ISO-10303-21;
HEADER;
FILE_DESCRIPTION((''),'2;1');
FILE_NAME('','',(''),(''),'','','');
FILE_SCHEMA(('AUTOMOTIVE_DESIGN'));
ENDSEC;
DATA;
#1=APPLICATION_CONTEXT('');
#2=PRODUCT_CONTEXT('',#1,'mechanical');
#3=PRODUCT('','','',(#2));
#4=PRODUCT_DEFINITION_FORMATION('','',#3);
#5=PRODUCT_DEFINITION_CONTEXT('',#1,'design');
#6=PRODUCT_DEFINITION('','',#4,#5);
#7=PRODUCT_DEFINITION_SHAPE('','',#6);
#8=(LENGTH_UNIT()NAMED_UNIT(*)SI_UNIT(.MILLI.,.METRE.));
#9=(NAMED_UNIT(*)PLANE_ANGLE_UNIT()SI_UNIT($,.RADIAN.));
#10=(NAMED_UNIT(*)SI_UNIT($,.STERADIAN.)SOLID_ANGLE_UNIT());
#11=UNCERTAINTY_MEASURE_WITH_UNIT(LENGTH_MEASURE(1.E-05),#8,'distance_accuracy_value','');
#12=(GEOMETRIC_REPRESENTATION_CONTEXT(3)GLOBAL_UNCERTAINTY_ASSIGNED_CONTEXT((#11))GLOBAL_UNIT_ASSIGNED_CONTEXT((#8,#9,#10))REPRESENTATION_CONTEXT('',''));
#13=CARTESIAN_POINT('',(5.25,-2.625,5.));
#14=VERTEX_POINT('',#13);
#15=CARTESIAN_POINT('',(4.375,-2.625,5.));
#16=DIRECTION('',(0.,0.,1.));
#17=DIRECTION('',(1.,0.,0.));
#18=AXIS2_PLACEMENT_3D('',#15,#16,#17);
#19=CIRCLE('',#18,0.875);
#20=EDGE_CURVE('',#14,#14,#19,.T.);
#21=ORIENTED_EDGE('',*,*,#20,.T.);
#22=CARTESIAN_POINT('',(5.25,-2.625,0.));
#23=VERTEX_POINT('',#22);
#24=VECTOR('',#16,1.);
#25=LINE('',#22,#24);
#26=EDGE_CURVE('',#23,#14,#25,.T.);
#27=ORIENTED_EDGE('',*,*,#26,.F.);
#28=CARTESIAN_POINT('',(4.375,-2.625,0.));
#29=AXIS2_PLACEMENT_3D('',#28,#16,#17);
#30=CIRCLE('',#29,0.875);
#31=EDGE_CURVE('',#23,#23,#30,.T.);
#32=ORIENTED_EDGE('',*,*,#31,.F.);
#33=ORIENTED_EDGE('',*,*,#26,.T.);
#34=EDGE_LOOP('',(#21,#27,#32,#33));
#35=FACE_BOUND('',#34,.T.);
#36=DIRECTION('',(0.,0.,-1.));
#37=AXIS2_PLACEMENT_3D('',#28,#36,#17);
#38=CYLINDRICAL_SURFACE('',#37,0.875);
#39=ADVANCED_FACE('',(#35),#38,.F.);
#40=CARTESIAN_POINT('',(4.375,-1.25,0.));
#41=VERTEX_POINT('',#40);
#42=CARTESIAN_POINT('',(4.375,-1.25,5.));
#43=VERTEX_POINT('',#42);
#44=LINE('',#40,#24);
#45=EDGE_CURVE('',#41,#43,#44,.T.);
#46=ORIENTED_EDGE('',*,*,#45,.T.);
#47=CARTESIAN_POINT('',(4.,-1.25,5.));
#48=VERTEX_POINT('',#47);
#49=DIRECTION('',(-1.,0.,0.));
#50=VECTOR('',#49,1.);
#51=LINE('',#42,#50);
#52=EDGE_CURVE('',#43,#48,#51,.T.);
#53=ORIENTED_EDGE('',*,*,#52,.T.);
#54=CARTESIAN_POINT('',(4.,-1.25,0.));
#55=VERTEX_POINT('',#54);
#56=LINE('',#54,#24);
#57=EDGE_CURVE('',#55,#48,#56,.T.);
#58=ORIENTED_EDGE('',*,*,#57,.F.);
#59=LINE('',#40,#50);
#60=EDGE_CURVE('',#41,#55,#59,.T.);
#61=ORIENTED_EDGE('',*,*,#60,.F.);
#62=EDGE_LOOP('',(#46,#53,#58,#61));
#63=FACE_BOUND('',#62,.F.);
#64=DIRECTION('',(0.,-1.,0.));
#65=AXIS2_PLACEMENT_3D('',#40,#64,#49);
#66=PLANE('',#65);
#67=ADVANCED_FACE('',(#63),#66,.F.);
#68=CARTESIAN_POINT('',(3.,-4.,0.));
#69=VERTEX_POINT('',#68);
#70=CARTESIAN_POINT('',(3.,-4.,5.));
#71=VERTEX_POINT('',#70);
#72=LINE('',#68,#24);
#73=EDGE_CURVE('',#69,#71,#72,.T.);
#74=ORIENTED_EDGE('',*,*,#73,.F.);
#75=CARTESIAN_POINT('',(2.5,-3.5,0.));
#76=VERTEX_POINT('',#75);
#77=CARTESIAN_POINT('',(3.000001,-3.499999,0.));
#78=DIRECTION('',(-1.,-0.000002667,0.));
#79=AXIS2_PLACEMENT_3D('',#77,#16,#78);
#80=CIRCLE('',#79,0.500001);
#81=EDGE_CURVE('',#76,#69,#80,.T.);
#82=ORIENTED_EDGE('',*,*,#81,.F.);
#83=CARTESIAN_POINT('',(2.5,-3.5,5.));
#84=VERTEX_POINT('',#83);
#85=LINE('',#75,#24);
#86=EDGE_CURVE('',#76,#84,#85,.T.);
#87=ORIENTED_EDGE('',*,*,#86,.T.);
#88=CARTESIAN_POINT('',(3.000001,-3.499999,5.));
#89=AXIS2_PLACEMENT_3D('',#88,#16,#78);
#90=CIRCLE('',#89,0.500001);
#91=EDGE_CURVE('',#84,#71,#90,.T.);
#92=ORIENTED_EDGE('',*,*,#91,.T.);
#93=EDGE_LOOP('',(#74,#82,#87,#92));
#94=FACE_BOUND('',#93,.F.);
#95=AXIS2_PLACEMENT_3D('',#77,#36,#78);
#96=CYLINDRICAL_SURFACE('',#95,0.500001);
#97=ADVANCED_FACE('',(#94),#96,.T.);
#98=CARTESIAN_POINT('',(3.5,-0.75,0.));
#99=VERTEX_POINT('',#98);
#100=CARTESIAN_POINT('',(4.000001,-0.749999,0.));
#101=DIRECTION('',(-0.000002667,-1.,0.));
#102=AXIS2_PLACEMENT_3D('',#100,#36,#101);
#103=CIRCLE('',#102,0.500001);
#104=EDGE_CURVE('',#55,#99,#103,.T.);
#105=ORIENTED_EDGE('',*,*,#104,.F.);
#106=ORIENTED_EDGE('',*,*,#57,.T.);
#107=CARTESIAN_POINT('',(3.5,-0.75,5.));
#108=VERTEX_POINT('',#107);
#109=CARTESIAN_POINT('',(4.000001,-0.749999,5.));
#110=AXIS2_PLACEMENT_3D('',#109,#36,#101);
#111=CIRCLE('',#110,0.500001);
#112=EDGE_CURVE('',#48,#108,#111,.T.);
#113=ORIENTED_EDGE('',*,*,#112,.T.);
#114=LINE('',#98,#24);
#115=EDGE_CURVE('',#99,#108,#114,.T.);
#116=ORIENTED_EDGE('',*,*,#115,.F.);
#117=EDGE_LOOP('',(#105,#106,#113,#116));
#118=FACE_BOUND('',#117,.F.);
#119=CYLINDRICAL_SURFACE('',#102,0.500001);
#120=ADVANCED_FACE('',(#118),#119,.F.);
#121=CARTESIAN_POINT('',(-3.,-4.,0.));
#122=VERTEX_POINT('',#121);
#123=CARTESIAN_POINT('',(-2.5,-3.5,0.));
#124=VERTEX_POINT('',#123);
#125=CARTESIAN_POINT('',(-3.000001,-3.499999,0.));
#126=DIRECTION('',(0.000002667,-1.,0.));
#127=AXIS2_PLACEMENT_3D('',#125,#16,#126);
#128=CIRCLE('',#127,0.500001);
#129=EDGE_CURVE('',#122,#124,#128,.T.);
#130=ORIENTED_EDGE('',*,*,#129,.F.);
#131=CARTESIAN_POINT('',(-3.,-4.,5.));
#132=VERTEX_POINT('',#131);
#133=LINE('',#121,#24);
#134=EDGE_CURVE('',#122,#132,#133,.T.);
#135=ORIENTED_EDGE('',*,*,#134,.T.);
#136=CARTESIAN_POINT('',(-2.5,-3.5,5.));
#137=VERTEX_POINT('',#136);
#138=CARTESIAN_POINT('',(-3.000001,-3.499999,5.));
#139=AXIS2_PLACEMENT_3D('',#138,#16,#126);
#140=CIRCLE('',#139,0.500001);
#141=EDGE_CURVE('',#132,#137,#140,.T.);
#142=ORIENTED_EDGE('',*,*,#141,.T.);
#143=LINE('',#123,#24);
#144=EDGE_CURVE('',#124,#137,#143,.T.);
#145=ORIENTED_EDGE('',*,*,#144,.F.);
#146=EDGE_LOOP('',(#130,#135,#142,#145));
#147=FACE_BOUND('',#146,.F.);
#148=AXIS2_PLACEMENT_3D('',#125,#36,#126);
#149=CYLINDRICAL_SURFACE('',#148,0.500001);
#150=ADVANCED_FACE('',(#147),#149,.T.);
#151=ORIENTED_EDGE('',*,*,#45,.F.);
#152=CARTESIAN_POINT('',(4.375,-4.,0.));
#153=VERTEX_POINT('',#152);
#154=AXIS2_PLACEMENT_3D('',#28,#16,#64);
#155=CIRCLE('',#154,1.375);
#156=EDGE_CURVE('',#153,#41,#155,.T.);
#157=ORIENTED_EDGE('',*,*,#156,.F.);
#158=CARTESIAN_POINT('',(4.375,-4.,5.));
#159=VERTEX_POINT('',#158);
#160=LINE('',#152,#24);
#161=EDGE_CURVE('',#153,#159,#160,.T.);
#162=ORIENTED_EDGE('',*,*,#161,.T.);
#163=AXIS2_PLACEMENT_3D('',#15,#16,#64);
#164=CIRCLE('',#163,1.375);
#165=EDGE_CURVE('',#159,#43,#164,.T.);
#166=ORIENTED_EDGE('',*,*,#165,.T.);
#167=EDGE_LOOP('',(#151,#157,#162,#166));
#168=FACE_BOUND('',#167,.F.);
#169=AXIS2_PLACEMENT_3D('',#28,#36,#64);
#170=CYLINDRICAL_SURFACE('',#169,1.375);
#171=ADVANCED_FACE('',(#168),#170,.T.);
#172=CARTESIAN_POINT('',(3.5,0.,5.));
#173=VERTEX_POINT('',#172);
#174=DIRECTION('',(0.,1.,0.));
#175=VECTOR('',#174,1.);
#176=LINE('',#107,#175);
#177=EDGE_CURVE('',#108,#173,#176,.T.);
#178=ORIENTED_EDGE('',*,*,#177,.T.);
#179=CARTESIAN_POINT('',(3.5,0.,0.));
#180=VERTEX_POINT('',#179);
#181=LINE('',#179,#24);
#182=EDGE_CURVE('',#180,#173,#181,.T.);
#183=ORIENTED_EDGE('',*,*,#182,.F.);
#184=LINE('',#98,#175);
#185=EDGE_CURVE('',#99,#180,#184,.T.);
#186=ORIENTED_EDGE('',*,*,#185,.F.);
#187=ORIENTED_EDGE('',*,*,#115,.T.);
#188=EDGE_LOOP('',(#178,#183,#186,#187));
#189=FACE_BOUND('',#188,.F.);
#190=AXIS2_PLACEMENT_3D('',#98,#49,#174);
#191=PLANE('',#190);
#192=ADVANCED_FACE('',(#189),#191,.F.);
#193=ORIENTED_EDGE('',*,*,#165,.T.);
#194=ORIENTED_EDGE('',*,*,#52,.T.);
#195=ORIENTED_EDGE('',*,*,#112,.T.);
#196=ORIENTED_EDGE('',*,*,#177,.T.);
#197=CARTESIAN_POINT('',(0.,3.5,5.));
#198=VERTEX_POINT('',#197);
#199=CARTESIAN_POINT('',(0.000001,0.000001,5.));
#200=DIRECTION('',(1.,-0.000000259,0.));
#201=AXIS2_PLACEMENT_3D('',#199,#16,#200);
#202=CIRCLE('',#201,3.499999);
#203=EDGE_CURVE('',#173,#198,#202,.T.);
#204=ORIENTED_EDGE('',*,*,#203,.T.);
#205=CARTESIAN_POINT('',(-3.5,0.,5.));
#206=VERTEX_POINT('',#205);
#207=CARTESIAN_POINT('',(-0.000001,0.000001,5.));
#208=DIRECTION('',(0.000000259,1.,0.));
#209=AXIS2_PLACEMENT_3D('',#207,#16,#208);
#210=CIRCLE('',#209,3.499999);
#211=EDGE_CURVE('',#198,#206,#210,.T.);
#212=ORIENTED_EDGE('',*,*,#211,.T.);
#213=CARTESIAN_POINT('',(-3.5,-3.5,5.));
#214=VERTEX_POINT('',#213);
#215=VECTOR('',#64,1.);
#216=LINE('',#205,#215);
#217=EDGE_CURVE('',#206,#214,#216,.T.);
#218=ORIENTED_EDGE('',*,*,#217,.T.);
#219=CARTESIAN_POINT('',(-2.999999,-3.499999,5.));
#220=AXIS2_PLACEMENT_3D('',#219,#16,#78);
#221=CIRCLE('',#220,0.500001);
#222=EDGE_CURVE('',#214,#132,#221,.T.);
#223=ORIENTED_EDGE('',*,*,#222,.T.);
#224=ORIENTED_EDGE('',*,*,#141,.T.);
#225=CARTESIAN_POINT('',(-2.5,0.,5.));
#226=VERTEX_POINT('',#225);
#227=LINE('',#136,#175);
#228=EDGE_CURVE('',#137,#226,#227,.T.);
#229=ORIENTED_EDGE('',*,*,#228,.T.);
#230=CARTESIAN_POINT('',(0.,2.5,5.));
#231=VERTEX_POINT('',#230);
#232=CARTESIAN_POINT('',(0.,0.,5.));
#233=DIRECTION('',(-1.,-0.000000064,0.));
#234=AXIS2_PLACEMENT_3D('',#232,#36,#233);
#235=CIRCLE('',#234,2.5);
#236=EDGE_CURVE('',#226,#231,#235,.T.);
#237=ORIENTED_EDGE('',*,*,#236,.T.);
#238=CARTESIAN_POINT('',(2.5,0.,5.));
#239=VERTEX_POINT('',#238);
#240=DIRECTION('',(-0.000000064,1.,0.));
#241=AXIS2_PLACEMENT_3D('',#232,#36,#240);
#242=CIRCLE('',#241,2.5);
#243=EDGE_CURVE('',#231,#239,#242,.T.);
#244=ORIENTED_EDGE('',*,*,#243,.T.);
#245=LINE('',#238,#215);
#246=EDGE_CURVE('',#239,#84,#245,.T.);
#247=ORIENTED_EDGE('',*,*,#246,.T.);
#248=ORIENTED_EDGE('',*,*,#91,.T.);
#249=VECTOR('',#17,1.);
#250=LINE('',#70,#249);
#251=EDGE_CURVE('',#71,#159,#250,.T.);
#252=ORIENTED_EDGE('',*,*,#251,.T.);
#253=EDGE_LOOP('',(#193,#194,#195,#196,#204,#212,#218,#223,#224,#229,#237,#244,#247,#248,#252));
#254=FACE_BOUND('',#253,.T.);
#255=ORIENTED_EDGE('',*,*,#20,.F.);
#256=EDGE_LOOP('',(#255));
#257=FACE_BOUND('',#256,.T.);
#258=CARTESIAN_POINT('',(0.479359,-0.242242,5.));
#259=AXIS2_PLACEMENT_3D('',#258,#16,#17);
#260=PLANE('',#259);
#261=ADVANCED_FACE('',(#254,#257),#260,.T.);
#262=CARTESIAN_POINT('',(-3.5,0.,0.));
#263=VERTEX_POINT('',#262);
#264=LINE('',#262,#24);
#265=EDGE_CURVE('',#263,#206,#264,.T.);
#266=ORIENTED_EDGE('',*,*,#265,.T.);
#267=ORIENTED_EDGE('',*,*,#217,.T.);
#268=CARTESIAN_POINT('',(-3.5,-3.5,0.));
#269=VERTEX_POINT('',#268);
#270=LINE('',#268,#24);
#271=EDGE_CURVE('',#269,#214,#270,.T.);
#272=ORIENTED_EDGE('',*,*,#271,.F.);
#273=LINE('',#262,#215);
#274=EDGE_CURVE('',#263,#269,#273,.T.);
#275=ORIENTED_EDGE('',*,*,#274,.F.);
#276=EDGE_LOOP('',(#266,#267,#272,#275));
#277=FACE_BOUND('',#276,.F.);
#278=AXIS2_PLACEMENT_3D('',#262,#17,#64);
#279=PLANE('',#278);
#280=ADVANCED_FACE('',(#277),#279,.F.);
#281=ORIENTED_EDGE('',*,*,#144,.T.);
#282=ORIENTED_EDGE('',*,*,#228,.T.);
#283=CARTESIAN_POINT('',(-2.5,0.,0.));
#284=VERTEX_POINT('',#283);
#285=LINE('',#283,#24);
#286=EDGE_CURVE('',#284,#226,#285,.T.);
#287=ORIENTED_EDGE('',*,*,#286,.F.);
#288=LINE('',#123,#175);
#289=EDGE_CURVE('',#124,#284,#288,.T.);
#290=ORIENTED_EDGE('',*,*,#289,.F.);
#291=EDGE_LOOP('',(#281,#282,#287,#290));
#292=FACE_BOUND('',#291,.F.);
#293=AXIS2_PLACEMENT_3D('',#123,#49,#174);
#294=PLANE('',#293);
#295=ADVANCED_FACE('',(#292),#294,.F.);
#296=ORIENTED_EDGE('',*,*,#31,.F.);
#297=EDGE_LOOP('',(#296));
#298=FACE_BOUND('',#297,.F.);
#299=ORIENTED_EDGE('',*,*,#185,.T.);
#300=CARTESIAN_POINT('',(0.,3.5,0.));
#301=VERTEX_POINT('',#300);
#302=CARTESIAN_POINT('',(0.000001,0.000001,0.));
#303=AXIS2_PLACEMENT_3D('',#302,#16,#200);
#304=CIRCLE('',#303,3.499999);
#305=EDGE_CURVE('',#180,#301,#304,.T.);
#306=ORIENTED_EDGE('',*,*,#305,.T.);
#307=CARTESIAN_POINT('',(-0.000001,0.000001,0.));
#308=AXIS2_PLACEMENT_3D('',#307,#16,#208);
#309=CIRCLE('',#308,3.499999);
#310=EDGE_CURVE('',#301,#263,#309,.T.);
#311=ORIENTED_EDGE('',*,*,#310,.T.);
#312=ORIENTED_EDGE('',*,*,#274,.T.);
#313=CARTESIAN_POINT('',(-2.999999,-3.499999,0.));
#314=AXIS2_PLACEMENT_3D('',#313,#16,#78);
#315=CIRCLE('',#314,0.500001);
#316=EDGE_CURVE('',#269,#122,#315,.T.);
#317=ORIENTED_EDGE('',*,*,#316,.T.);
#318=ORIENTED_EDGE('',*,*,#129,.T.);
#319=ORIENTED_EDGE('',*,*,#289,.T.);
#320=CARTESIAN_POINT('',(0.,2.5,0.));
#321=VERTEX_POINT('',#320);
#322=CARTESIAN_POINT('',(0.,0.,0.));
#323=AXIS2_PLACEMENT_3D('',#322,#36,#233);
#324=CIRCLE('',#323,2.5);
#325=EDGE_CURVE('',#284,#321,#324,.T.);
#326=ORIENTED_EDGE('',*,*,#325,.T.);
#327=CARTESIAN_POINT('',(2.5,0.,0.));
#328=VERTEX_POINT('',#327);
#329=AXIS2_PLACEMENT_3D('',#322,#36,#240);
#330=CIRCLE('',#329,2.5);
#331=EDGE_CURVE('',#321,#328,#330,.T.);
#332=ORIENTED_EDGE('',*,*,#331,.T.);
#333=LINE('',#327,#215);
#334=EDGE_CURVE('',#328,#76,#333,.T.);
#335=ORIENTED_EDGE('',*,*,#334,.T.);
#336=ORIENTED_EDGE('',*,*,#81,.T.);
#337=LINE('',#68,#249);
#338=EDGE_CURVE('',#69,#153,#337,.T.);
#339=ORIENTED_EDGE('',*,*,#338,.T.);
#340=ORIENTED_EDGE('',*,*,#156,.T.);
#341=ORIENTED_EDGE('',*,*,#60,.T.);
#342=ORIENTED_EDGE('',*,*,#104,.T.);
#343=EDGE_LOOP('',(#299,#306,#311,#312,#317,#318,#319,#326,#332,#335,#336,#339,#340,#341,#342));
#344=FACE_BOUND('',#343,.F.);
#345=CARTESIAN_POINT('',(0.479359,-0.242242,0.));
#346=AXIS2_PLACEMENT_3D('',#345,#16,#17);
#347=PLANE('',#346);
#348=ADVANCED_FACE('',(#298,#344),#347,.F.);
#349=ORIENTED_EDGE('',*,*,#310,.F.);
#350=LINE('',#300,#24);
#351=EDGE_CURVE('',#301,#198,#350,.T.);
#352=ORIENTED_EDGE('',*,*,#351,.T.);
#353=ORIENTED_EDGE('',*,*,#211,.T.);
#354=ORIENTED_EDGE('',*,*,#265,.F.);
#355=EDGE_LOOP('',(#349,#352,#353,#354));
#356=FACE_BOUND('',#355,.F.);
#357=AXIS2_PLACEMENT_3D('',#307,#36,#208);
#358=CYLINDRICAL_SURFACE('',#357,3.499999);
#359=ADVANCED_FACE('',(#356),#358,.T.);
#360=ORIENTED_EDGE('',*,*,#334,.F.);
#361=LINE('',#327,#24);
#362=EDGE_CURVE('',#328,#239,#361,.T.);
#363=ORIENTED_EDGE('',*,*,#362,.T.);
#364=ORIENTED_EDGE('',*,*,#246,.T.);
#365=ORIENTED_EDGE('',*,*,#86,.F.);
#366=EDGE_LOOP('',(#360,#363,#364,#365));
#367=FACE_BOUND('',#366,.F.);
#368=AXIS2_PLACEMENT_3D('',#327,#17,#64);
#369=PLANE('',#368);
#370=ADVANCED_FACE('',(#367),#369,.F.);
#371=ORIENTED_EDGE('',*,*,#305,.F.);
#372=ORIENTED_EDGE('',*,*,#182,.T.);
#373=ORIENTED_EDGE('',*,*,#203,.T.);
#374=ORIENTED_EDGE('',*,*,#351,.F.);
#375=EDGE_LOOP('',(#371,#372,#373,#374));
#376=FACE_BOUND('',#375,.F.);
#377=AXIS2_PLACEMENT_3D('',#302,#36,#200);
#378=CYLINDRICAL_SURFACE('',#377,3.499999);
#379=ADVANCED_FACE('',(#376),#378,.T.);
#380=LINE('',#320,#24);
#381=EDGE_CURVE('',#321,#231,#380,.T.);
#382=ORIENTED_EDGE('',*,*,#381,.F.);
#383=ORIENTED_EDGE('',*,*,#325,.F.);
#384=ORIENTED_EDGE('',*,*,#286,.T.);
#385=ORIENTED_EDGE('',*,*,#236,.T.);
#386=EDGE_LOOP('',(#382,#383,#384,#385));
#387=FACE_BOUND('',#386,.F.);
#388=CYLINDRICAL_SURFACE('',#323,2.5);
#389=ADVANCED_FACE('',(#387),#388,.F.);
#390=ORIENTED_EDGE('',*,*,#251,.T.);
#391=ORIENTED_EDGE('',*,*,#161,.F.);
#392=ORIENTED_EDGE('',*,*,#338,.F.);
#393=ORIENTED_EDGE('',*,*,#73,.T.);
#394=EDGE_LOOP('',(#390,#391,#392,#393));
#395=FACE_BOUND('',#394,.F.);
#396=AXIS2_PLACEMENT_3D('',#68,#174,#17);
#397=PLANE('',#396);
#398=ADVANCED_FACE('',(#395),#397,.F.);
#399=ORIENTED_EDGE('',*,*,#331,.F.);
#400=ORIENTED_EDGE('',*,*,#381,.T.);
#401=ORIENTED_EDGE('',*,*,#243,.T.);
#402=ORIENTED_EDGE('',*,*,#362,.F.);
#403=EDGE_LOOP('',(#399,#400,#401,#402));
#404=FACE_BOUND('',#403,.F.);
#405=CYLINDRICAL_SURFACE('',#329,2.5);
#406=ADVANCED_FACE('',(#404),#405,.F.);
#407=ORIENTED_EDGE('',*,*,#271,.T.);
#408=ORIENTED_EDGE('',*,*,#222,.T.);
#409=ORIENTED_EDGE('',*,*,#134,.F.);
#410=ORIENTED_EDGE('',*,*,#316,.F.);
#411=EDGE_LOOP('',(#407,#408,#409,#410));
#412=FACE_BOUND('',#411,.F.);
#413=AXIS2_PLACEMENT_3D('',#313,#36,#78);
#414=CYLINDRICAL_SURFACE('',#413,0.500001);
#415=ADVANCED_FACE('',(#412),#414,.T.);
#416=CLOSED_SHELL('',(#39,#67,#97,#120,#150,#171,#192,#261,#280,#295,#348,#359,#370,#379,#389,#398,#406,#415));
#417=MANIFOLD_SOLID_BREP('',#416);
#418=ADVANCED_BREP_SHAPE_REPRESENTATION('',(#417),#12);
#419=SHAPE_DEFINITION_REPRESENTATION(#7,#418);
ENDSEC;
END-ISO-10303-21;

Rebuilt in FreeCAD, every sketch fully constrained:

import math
import FreeCAD as App
import Part
import Sketcher

V = App.Vector
Q = App.Units.Quantity

doc = App.newDocument("Part")
params = doc.addObject("Spreadsheet::Sheet", "Params")
for row, (alias, value) in enumerate([
    ("sketch1_radius", "2.5 mm"),
    ("sketch1_radius2", "0.500001 mm"),
    ("sketch1_diameter", "1.75 mm"),
    ("sketch1_height", "3.5 mm"),
    ("sketch1_height2", "0.75 mm"),
    ("pad1_length", "5 mm"),
], start=1):
    params.set(f"A{row}", alias)
    params.set(f"B{row}", "=" + value)
    params.setAlias(f"B{row}", alias)

body = doc.addObject("PartDesign::Body", "Body")

# Sketch on XY plane
sketch1 = doc.addObject("Sketcher::SketchObject", "Sketch")
body.addObject(sketch1)
sketch1.AttachmentSupport = (doc.XY_Plane, [""])
sketch1.MapMode = "FlatFace"
sketch1.addGeometry([
    Part.ArcOfCircle(Part.Circle(V(0, 0, 0), V(0, 0, 1), 2.5), math.radians(89.999996), math.radians(180.000004)),  # 0
    Part.ArcOfCircle(Part.Circle(V(0, 0, 0), V(0, 0, 1), 2.5), math.radians(-0.000004), math.radians(90.000004)),  # 1
    Part.LineSegment(V(2.5, 0, 0), V(2.5, -3.5, 0)),  # 2
    Part.ArcOfCircle(Part.Circle(V(3.000001, -3.499999, 0), V(0, 0, 1), 0.500001), math.radians(-179.999847), math.radians(-90.000153)),  # 3
    Part.LineSegment(V(3, -4, 0), V(4.375, -4, 0)),  # 4
    Part.ArcOfCircle(Part.Circle(V(4.375, -2.625, 0), V(0, 0, 1), 1.375), math.radians(-90), math.radians(90)),  # 5
    Part.LineSegment(V(4.375, -1.25, 0), V(4, -1.25, 0)),  # 6
    Part.ArcOfCircle(Part.Circle(V(4.000001, -0.749999, 0), V(0, 0, 1), 0.500001), math.radians(-179.999847), math.radians(-90.000153)),  # 7
    Part.LineSegment(V(3.5, -0.75, 0), V(3.5, 0, 0)),  # 8
    Part.ArcOfCircle(Part.Circle(V(0.000001, 0.000001, 0), V(0, 0, 1), 3.499999), math.radians(-0.000015), math.radians(90.000015)),  # 9
    Part.ArcOfCircle(Part.Circle(V(-0.000001, 0.000001, 0), V(0, 0, 1), 3.499999), math.radians(89.999985), math.radians(180.000015)),  # 10
    Part.LineSegment(V(-3.5, 0, 0), V(-3.5, -3.5, 0)),  # 11
    Part.ArcOfCircle(Part.Circle(V(-2.999999, -3.499999, 0), V(0, 0, 1), 0.500001), math.radians(-179.999847), math.radians(-90.000153)),  # 12
    Part.ArcOfCircle(Part.Circle(V(-3.000001, -3.499999, 0), V(0, 0, 1), 0.500001), math.radians(-89.999847), math.radians(-0.000153)),  # 13
    Part.LineSegment(V(-2.5, -3.5, 0), V(-2.5, 0, 0)),  # 14
    Part.Circle(V(4.375, -2.625, 0), V(0, 0, 1), 0.875),  # 15
], False)
sketch1.addConstraint([
    Sketcher.Constraint("Tangent", 0, 1, 1, 2),
    Sketcher.Constraint("Tangent", 1, 1, 2, 1),
    Sketcher.Constraint("Coincident", 2, 2, 3, 1),
    Sketcher.Constraint("Coincident", 3, 2, 4, 1),
    Sketcher.Constraint("Tangent", 4, 2, 5, 1),
    Sketcher.Constraint("Tangent", 5, 2, 6, 1),
    Sketcher.Constraint("Coincident", 6, 2, 7, 2),
    Sketcher.Constraint("Coincident", 7, 1, 8, 1),
    Sketcher.Constraint("Tangent", 8, 2, 9, 1),
    Sketcher.Constraint("Tangent", 9, 2, 10, 1),
    Sketcher.Constraint("Tangent", 10, 2, 11, 1),
    Sketcher.Constraint("Coincident", 11, 2, 12, 1),
    Sketcher.Constraint("Coincident", 12, 2, 13, 1),
    Sketcher.Constraint("Coincident", 13, 2, 14, 1),
    Sketcher.Constraint("Tangent", 14, 2, 0, 2),
    Sketcher.Constraint("Vertical", 2),
    Sketcher.Constraint("Horizontal", 4),
    Sketcher.Constraint("Horizontal", 6),
    Sketcher.Constraint("Vertical", 8),
    Sketcher.Constraint("Vertical", 11),
    Sketcher.Constraint("Vertical", 14),
    Sketcher.Constraint("Coincident", 0, 3, -1, 1),
    Sketcher.Constraint("Coincident", 9, 3, -1, 1),
    Sketcher.Constraint("Coincident", 13, 3, 12, 3),
    Sketcher.Constraint("Coincident", 15, 3, 5, 3),
    Sketcher.Constraint("Equal", 0, 1),
    Sketcher.Constraint("Equal", 3, 7),
    Sketcher.Constraint("Equal", 9, 10),
    Sketcher.Constraint("Equal", 7, 12),
    Sketcher.Constraint("Symmetric", 3, 2, 12, 2, -2),
    Sketcher.Constraint("PointOnObject", 0, 1, -2),
    Sketcher.Constraint("PointOnObject", 9, 2, -2),
    Sketcher.Constraint("Horizontal", 13, 3, 2, 2),
    Sketcher.Constraint("Horizontal", 2, 2, 11, 2),
    Sketcher.Constraint("Horizontal", 11, 2, 13, 2),
    Sketcher.Constraint("Vertical", 7, 3, 6, 2),
    Sketcher.Constraint("Vertical", 13, 3, 12, 2),
    Sketcher.Constraint("Radius", 0, Q("2.5 mm")),
    Sketcher.Constraint("Radius", 3, Q("0.500001 mm")),
    Sketcher.Constraint("Diameter", 15, Q("1.75 mm")),
    Sketcher.Constraint("DistanceY", 2, 2, 2, 1, Q("3.5 mm")),
    Sketcher.Constraint("Radius", 5, Q("1.375 mm")),
    Sketcher.Constraint("DistanceY", 8, 1, 8, 2, Q("0.75 mm")),
    Sketcher.Constraint("DistanceX", 4, 1, 4, 2, Q("1.375 mm")),
])
sketch1.setExpression("Constraints[37]", "Params.sketch1_radius")
sketch1.setExpression("Constraints[38]", "Params.sketch1_radius2")
sketch1.setExpression("Constraints[39]", "Params.sketch1_diameter")
sketch1.setExpression("Constraints[40]", "Params.sketch1_height")
sketch1.setExpression("Constraints[42]", "Params.sketch1_height2")
pad1 = doc.addObject("PartDesign::Pad", "Pad")
body.addObject(pad1)
pad1.Profile = sketch1
pad1.setExpression("Length", "Params.pad1_length")

doc.recompute()
